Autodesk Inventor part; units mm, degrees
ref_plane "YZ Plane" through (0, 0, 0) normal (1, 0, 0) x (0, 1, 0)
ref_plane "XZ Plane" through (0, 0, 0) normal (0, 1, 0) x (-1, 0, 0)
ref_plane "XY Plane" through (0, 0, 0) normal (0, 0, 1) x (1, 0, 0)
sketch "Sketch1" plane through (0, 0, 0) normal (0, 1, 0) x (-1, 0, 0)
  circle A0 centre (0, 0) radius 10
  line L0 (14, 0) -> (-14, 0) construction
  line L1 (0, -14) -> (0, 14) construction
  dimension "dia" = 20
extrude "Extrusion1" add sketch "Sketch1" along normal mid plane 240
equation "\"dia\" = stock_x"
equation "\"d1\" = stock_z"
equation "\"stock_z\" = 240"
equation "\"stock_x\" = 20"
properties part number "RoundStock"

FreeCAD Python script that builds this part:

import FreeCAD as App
import Part
import Sketcher
Q = App.Units.Quantity

doc = App.newDocument("Part")
body = doc.addObject("PartDesign::Body", "Body")

# Sketch on XZ plane
sketch1 = doc.addObject("Sketcher::SketchObject", "Sketch")
body.addObject(sketch1)
sketch1.AttachmentSupport = (doc.XZ_Plane, [""])
sketch1.MapMode = "FlatFace"
sketch1.addGeometry(Part.Circle(App.Vector(0, 0, 0), App.Vector(0, 0, 1), 10), False)
sketch1.addConstraint([
    Sketcher.Constraint("Coincident", 0, 3, -1, 1),
    Sketcher.Constraint("Diameter", 0, Q("20 mm")),
])
pad1 = doc.addObject("PartDesign::Pad", "Pad")
body.addObject(pad1)
pad1.Profile = sketch1
pad1.Length = 240
pad1.Midplane = True

doc.recompute()
